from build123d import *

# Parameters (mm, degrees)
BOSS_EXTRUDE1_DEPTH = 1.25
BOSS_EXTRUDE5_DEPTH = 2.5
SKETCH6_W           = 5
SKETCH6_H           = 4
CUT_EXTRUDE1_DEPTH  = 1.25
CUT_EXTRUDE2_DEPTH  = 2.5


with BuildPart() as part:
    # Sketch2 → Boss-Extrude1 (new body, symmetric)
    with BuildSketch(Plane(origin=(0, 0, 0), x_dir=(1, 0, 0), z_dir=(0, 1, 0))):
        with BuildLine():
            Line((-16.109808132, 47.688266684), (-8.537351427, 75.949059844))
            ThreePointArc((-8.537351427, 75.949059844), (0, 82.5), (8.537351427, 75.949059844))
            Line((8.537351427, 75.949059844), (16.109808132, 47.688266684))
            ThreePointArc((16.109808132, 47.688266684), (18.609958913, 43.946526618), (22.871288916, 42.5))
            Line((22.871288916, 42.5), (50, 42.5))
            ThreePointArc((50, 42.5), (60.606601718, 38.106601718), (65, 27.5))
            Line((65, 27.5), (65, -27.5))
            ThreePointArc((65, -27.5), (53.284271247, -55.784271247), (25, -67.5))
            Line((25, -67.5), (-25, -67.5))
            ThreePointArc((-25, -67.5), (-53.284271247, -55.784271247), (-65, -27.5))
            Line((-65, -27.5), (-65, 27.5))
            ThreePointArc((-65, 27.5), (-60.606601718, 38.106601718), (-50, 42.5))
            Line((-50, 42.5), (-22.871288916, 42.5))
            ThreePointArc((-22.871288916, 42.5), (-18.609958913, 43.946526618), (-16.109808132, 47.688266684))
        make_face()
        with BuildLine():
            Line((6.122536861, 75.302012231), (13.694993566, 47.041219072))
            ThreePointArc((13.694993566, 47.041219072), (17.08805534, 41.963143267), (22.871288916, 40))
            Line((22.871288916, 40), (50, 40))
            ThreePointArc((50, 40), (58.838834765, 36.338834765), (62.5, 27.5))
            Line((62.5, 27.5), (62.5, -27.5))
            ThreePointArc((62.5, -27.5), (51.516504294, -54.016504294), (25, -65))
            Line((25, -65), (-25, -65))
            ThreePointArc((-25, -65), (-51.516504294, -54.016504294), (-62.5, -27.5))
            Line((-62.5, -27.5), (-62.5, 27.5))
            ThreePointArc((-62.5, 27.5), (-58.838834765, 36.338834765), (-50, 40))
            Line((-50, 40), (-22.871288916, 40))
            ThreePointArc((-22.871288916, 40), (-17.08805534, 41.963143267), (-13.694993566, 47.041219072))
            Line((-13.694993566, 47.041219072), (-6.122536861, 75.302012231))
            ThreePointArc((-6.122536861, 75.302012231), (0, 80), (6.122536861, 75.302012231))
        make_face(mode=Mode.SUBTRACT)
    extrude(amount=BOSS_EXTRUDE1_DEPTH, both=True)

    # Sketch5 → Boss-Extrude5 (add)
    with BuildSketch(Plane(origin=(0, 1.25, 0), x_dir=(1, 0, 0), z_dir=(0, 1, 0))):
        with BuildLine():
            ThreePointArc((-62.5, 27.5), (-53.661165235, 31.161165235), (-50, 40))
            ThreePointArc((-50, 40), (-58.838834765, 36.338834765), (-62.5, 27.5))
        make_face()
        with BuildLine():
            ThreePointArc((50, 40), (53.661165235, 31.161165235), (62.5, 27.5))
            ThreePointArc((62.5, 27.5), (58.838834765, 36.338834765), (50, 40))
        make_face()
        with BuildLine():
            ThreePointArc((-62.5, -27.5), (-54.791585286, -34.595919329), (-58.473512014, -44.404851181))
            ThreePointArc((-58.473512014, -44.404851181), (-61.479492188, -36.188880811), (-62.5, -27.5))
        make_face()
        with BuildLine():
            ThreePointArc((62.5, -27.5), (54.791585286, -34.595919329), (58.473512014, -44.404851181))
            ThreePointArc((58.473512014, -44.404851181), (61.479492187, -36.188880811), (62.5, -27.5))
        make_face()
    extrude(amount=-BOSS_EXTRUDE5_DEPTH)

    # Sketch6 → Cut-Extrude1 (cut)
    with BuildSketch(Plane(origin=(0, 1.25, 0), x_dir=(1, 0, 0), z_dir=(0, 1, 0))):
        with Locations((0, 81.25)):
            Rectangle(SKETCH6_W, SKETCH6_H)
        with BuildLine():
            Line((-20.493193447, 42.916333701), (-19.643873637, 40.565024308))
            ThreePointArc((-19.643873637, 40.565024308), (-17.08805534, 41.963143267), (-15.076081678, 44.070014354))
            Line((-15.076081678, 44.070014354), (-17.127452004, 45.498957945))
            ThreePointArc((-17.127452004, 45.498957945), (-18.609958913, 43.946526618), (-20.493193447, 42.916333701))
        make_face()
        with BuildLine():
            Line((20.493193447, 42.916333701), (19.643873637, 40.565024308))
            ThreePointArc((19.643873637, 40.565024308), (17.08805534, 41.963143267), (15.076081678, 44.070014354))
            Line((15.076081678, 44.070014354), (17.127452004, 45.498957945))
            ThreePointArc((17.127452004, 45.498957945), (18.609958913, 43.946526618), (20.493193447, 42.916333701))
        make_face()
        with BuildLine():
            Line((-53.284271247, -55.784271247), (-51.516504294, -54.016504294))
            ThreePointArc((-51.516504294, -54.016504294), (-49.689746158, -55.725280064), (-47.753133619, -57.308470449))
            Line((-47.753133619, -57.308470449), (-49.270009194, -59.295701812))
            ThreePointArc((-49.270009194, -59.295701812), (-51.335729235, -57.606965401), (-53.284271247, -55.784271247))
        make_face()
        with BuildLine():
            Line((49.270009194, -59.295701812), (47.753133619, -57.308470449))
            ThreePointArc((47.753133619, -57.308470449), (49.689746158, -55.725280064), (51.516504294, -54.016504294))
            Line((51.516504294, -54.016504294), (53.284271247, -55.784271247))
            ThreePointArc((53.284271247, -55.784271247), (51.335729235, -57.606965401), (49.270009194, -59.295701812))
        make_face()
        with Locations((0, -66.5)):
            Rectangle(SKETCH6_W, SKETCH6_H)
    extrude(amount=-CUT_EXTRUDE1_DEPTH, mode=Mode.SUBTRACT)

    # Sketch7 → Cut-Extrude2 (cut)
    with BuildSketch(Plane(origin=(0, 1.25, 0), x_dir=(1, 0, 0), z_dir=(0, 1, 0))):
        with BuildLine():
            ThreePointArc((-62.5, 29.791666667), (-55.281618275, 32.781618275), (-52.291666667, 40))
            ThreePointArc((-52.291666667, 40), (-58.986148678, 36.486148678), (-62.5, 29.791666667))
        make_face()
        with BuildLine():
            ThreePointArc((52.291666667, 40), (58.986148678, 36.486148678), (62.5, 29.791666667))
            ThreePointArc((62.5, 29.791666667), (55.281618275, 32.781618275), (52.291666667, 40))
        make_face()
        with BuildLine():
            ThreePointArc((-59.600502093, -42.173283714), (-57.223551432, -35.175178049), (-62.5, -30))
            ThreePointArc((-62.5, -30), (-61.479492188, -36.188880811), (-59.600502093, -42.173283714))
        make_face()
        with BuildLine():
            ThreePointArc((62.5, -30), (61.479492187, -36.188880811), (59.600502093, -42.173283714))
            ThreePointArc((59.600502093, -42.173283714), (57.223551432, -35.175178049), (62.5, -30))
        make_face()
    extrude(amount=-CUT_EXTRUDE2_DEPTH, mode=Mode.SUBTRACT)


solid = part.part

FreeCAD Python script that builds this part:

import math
import FreeCAD as App
import Part
import Sketcher
Q = App.Units.Quantity


def add_polygon(sketch, points):
    """Adds a closed chain of lines whose ends are joined by coincident constraints."""
    first, n = sketch.GeometryCount, len(points)
    for a, b in zip(points, points[1:] + points[:1]):
        sketch.addGeometry(Part.LineSegment(App.Vector(*a, 0), App.Vector(*b, 0)), False)
    for i in range(n):
        sketch.addConstraint(Sketcher.Constraint("Coincident", first + i, 2, first + (i + 1) % n, 1))

doc = App.newDocument("Part")
body = doc.addObject("PartDesign::Body", "Body")

sketch1 = doc.addObject("Sketcher::SketchObject", "Sketch")
body.addObject(sketch1)
sketch1.AttachmentSupport = (doc.XZ_Plane, [""])
sketch1.MapMode = "FlatFace"
sketch1.addGeometry([
    Part.LineSegment(App.Vector(-8.537351, -75.94906, 0), App.Vector(-16.109808, -47.688267, 0)),
    Part.ArcOfCircle(Part.Circle(App.Vector(-22.871289, -49.5, 0), App.Vector(0, 0, 1), 7), math.radians(15), math.radians(90)),
    Part.LineSegment(App.Vector(-22.871289, -42.5, 0), App.Vector(-50, -42.5, 0)),
    Part.ArcOfCircle(Part.Circle(App.Vector(-50, -27.5, 0), App.Vector(0, 0, 1), 15), math.radians(180), math.radians(270)),
    Part.LineSegment(App.Vector(-65, -27.5, 0), App.Vector(-65, 27.5, 0)),
    Part.ArcOfCircle(Part.Circle(App.Vector(-25, 27.5, 0), App.Vector(0, 0, 1), 40), math.radians(90), math.radians(180)),
    Part.LineSegment(App.Vector(-25, 67.5, 0), App.Vector(25, 67.5, 0)),
    Part.ArcOfCircle(Part.Circle(App.Vector(25, 27.5, 0), App.Vector(0, 0, 1), 40), math.radians(0), math.radians(90)),
    Part.LineSegment(App.Vector(65, 27.5, 0), App.Vector(65, -27.5, 0)),
    Part.ArcOfCircle(Part.Circle(App.Vector(50, -27.5, 0), App.Vector(0, 0, 1), 15), math.radians(-90), math.radians(0)),
    Part.LineSegment(App.Vector(50, -42.5, 0), App.Vector(22.871289, -42.5, 0)),
    Part.ArcOfCircle(Part.Circle(App.Vector(22.871289, -49.5, 0), App.Vector(0, 0, 1), 7), math.radians(90), math.radians(165)),
    Part.LineSegment(App.Vector(16.109808, -47.688267, 0), App.Vector(8.537351, -75.94906, 0)),
    Part.ArcOfCircle(Part.Circle(App.Vector(0, -73.661483, 0), App.Vector(0, 0, 1), 8.838517), math.radians(-165), math.radians(-15)),
    Part.LineSegment(App.Vector(6.122537, -75.302012, 0), App.Vector(13.694994, -47.041219, 0)),
    Part.ArcOfCircle(Part.Circle(App.Vector(22.871289, -49.5, 0), App.Vector(0, 0, 1), 9.5), math.radians(90), math.radians(165)),
    Part.LineSegment(App.Vector(22.871289, -40, 0), App.Vector(50, -40, 0)),
    Part.ArcOfCircle(Part.Circle(App.Vector(50, -27.5, 0), App.Vector(0, 0, 1), 12.5), math.radians(-90), math.radians(0)),
    Part.LineSegment(App.Vector(62.5, -27.5, 0), App.Vector(62.5, 27.5, 0)),
    Part.ArcOfCircle(Part.Circle(App.Vector(25, 27.5, 0), App.Vector(0, 0, 1), 37.5), math.radians(0), math.radians(90)),
    Part.LineSegment(App.Vector(25, 65, 0), App.Vector(-25, 65, 0)),
    Part.ArcOfCircle(Part.Circle(App.Vector(-25, 27.5, 0), App.Vector(0, 0, 1), 37.5), math.radians(90), math.radians(180)),
    Part.LineSegment(App.Vector(-62.5, 27.5, 0), App.Vector(-62.5, -27.5, 0)),
    Part.ArcOfCircle(Part.Circle(App.Vector(-50, -27.5, 0), App.Vector(0, 0, 1), 12.5), math.radians(180), math.radians(270)),
    Part.LineSegment(App.Vector(-50, -40, 0), App.Vector(-22.871289, -40, 0)),
    Part.ArcOfCircle(Part.Circle(App.Vector(-22.871289, -49.5, 0), App.Vector(0, 0, 1), 9.5), math.radians(15), math.radians(90)),
    Part.LineSegment(App.Vector(-13.694994, -47.041219, 0), App.Vector(-6.122537, -75.302012, 0)),
    Part.ArcOfCircle(Part.Circle(App.Vector(0, -73.661483, 0), App.Vector(0, 0, 1), 6.338517), math.radians(-165), math.radians(-15)),
], False)
sketch1.addConstraint([
    Sketcher.Constraint("Tangent", 0, 2, 1, 1),
    Sketcher.Constraint("Tangent", 1, 2, 2, 1),
    Sketcher.Constraint("Tangent", 2, 2, 3, 2),
    Sketcher.Constraint("Tangent", 3, 1, 4, 1),
    Sketcher.Constraint("Tangent", 4, 2, 5, 2),
    Sketcher.Constraint("Tangent", 5, 1, 6, 1),
    Sketcher.Constraint("Tangent", 6, 2, 7, 2),
    Sketcher.Constraint("Tangent", 7, 1, 8, 1),
    Sketcher.Constraint("Tangent", 8, 2, 9, 2),
    Sketcher.Constraint("Tangent", 9, 1, 10, 1),
    Sketcher.Constraint("Tangent", 10, 2, 11, 1),
    Sketcher.Constraint("Tangent", 11, 2, 12, 1),
    Sketcher.Constraint("Tangent", 12, 2, 13, 2),
    Sketcher.Constraint("Tangent", 13, 1, 0, 1),
    Sketcher.Constraint("Tangent", 14, 2, 15, 2),
    Sketcher.Constraint("Tangent", 15, 1, 16, 1),
    Sketcher.Constraint("Tangent", 16, 2, 17, 1),
    Sketcher.Constraint("Tangent", 17, 2, 18, 1),
    Sketcher.Constraint("Tangent", 18, 2, 19, 1),
    Sketcher.Constraint("Tangent", 19, 2, 20, 1),
    Sketcher.Constraint("Tangent", 20, 2, 21, 1),
    Sketcher.Constraint("Tangent", 21, 2, 22, 1),
    Sketcher.Constraint("Tangent", 22, 2, 23, 1),
    Sketcher.Constraint("Tangent", 23, 2, 24, 1),
    Sketcher.Constraint("Tangent", 24, 2, 25, 2),
    Sketcher.Constraint("Tangent", 25, 1, 26, 1),
    Sketcher.Constraint("Tangent", 26, 2, 27, 1),
    Sketcher.Constraint("Tangent", 27, 2, 14, 1),
    Sketcher.Constraint("Horizontal", 2),
    Sketcher.Constraint("Vertical", 4),
    Sketcher.Constraint("Horizontal", 6),
    Sketcher.Constraint("Vertical", 8),
    Sketcher.Constraint("Horizontal", 10),
    Sketcher.Constraint("Horizontal", 16),
    Sketcher.Constraint("Vertical", 18),
    Sketcher.Constraint("Horizontal", 20),
    Sketcher.Constraint("Vertical", 22),
    Sketcher.Constraint("Horizontal", 24),
    Sketcher.Constraint("Coincident", 15, 3, 11, 3),
    Sketcher.Constraint("Coincident", 17, 3, 9, 3),
    Sketcher.Constraint("Coincident", 19, 3, 7, 3),
    Sketcher.Constraint("Coincident", 21, 3, 5, 3),
    Sketcher.Constraint("Coincident", 23, 3, 3, 3),
    Sketcher.Constraint("Coincident", 25, 3, 1, 3),
    Sketcher.Constraint("Coincident", 27, 3, 13, 3),
    Sketcher.Constraint("Equal", 5, 7),
    Sketcher.Constraint("Equal", 3, 9),
    Sketcher.Constraint("Equal", 1, 11),
    Sketcher.Constraint("Symmetric", 3, 1, 7, 1, -1, 1),
    Sketcher.Constraint("Symmetric", 1, 3, 11, 3, -2),
    Sketcher.Constraint("PointOnObject", 13, 3, -2),
    Sketcher.Constraint("Parallel", 12, 14),
    Sketcher.Constraint("Radius", 1, 7.0),
    Sketcher.Constraint("Radius", 3, 15.0),
    Sketcher.Constraint("Radius", 5, 40.0),
    Sketcher.Constraint("Radius", 15, 9.5),
    Sketcher.Constraint("DistanceX", 6, 1, 6, 2, 50.0),
    Sketcher.Constraint("DistanceY", 4, 1, 4, 2, 55.0),
    Sketcher.Constraint("Angle", 0, Q("105 deg")),
    Sketcher.Constraint("Radius", 13, 8.838517),
    Sketcher.Constraint("DistanceX", 2, 2, 2, 1, 27.128711),
])
pad1 = doc.addObject("PartDesign::Pad", "Pad")
body.addObject(pad1)
pad1.Profile = sketch1
pad1.Length = 2.5
pad1.Midplane = True

sketch2 = doc.addObject("Sketcher::SketchObject", "Sketch001")
body.addObject(sketch2)
sketch2.AttachmentSupport = (doc.XZ_Plane, [""])
sketch2.MapMode = "FlatFace"
sketch2.AttachmentOffset = App.Placement(App.Vector(0, 0, -1.25), App.Rotation())
sketch2.addGeometry([
    Part.ArcOfCircle(Part.Circle(App.Vector(-62.5, -40, 0), App.Vector(0, 0, 1), 12.5), math.radians(0), math.radians(90)),
    Part.ArcOfCircle(Part.Circle(App.Vector(-50, -27.5, 0), App.Vector(0, 0, 1), 12.5), math.radians(180), math.radians(270)),
    Part.ArcOfCircle(Part.Circle(App.Vector(62.5, -40, 0), App.Vector(0, 0, 1), 12.5), math.radians(90), math.radians(180)),
    Part.ArcOfCircle(Part.Circle(App.Vector(50, -27.5, 0), App.Vector(0, 0, 1), 12.5), math.radians(-90), math.radians(0)),
    Part.ArcOfCircle(Part.Circle(App.Vector(-63.911458, 36.76814, 0), App.Vector(0, 0, 1), 9.375), math.radians(-81.340877), math.radians(54.546109)),
    Part.ArcOfCircle(Part.Circle(App.Vector(-25, 27.5, 0), App.Vector(0, 0, 1), 37.5), math.radians(153.205232), math.radians(180)),
    Part.ArcOfCircle(Part.Circle(App.Vector(63.911458, 36.76814, 0), App.Vector(0, 0, 1), 9.375), math.radians(125.453891), math.radians(261.340877)),
    Part.ArcOfCircle(Part.Circle(App.Vector(25, 27.5, 0), App.Vector(0, 0, 1), 37.5), math.radians(0), math.radians(26.794768)),
], False)
sketch2.addConstraint([
    Sketcher.Constraint("Coincident", 0, 1, 1, 2),
    Sketcher.Constraint("Coincident", 1, 1, 0, 2),
    Sketcher.Constraint("Coincident", 2, 1, 3, 2),
    Sketcher.Constraint("Coincident", 3, 1, 2, 2),
    Sketcher.Constraint("Coincident", 4, 1, 5, 2),
    Sketcher.Constraint("Coincident", 5, 1, 4, 2),
    Sketcher.Constraint("Coincident", 6, 1, 7, 2),
    Sketcher.Constraint("Coincident", 7, 1, 6, 2),
    Sketcher.Constraint("Equal", 0, 1),
    Sketcher.Constraint("Equal", 1, 2),
    Sketcher.Constraint("Equal", 2, 3),
    Sketcher.Constraint("Equal", 4, 6),
    Sketcher.Constraint("Equal", 5, 7),
    Sketcher.Constraint("Symmetric", 2, 1, 4, 1, -1, 1),
    Sketcher.Constraint("Symmetric", 1, 1, 7, 1, -1, 1),
    Sketcher.Constraint("Symmetric", 0, 3, 2, 3, -2),
    Sketcher.Constraint("Symmetric", 1, 3, 3, 3, -2),
    Sketcher.Constraint("Symmetric", 5, 1, 6, 1, -2),
    Sketcher.Constraint("Horizontal", 2, 3, 0, 1),
    Sketcher.Constraint("Horizontal", 7, 3, 4, 1),
    Sketcher.Constraint("Vertical", 1, 3, 0, 1),
    Sketcher.Constraint("Radius", 0, 12.5),
    Sketcher.Constraint("Radius", 5, 37.5),
    Sketcher.Constraint("DistanceY", 0, 3, -1, 1, 40.0),
    Sketcher.Constraint("DistanceX", 1, 3, -1, 1, 50.0),
    Sketcher.Constraint("Radius", 4, 9.375),
    Sketcher.Constraint("DistanceX", 4, 3, -1, 1, 63.911458),
])
pad2 = doc.addObject("PartDesign::Pad", "Pad001")
body.addObject(pad2)
pad2.Profile = sketch2
pad2.Length = 2.5

sketch3 = doc.addObject("Sketcher::SketchObject", "Sketch002")
body.addObject(sketch3)
sketch3.AttachmentSupport = (doc.XZ_Plane, [""])
sketch3.MapMode = "FlatFace"
sketch3.AttachmentOffset = App.Placement(App.Vector(0, 0, -1.25), App.Rotation())
add_polygon(sketch3, [(-2.5, -83.25), (-2.5, -79.25), (2.5, -79.25), (2.5, -83.25)])
sketch3.addGeometry(Part.LineSegment(App.Vector(-20.493193, -42.916334, 0), App.Vector(-19.643874, -40.565024, 0)), False)
sketch3.addGeometry(Part.ArcOfCircle(Part.Circle(App.Vector(-22.871289, -49.5, 0), App.Vector(0, 0, 1), 9.5), math.radians(34.860299), math.radians(70.139701)), False)
sketch3.addGeometry(Part.LineSegment(App.Vector(-15.076082, -44.070014, 0), App.Vector(-17.127452, -45.498958, 0)), False)
sketch3.addGeometry(Part.ArcOfCircle(Part.Circle(App.Vector(-22.871289, -49.5, 0), App.Vector(0, 0, 1), 7), math.radians(34.860299), math.radians(70.139701)), False)
sketch3.addGeometry(Part.LineSegment(App.Vector(19.643874, -40.565024, 0), App.Vector(20.493193, -42.916334, 0)), False)
sketch3.addGeometry(Part.ArcOfCircle(Part.Circle(App.Vector(22.871289, -49.5, 0), App.Vector(0, 0, 1), 7), math.radians(109.860299), math.radians(145.139701)), False)
sketch3.addGeometry(Part.LineSegment(App.Vector(17.127452, -45.498958, 0), App.Vector(15.076082, -44.070014, 0)), False)
sketch3.addGeometry(Part.ArcOfCircle(Part.Circle(App.Vector(22.871289, -49.5, 0), App.Vector(0, 0, 1), 9.5), math.radians(109.860299), math.radians(145.139701)), False)
sketch3.addGeometry(Part.LineSegment(App.Vector(-51.516504, 54.016504, 0), App.Vector(-53.284271, 55.784271, 0)), False)
sketch3.addGeometry(Part.ArcOfCircle(Part.Circle(App.Vector(-25, 27.5, 0), App.Vector(0, 0, 1), 40), math.radians(127.354893), math.radians(135)), False)
sketch3.addGeometry(Part.LineSegment(App.Vector(-49.270009, 59.295702, 0), App.Vector(-47.753134, 57.30847, 0)), False)
sketch3.addGeometry(Part.ArcOfCircle(Part.Circle(App.Vector(-25, 27.5, 0), App.Vector(0, 0, 1), 37.5), math.radians(127.354893), math.radians(135)), False)
sketch3.addGeometry(Part.LineSegment(App.Vector(47.753134, 57.30847, 0), App.Vector(49.270009, 59.295702, 0)), False)
sketch3.addGeometry(Part.ArcOfCircle(Part.Circle(App.Vector(25, 27.5, 0), App.Vector(0, 0, 1), 40), math.radians(45), math.radians(52.645107)), False)
sketch3.addGeometry(Part.LineSegment(App.Vector(53.284271, 55.784271, 0), App.Vector(51.516504, 54.016504, 0)), False)
sketch3.addGeometry(Part.ArcOfCircle(Part.Circle(App.Vector(25, 27.5, 0), App.Vector(0, 0, 1), 37.5), math.radians(45), math.radians(52.645107)), False)
add_polygon(sketch3, [(-2.5, 64.5), (-2.5, 68.5), (2.5, 68.5), (2.5, 64.5)])
sketch3.addConstraint([
    Sketcher.Constraint("Coincident", 4, 2, 5, 2),
    Sketcher.Constraint("Coincident", 5, 1, 6, 1),
    Sketcher.Constraint("Coincident", 6, 2, 7, 1),
    Sketcher.Constraint("Coincident", 7, 2, 4, 1),
    Sketcher.Constraint("Coincident", 8, 2, 9, 1),
    Sketcher.Constraint("Coincident", 9, 2, 10, 1),
    Sketcher.Constraint("Coincident", 10, 2, 11, 2),
    Sketcher.Constraint("Coincident", 11, 1, 8, 1),
    Sketcher.Constraint("Coincident", 12, 2, 13, 2),
    Sketcher.Constraint("Coincident", 13, 1, 14, 1),
    Sketcher.Constraint("Coincident", 14, 2, 15, 1),
    Sketcher.Constraint("Coincident", 15, 2, 12, 1),
    Sketcher.Constraint("Coincident", 16, 2, 17, 2),
    Sketcher.Constraint("Coincident", 17, 1, 18, 1),
    Sketcher.Constraint("Coincident", 18, 2, 19, 1),
    Sketcher.Constraint("Coincident", 19, 2, 16, 1),
    Sketcher.Constraint("Vertical", 0),
    Sketcher.Constraint("Horizontal", 1),
    Sketcher.Constraint("Vertical", 2),
    Sketcher.Constraint("Horizontal", 3),
    Sketcher.Constraint("Vertical", 20),
    Sketcher.Constraint("Horizontal", 21),
    Sketcher.Constraint("Vertical", 22),
    Sketcher.Constraint("Horizontal", 23),
    Sketcher.Constraint("Coincident", 7, 3, 5, 3),
    Sketcher.Constraint("Coincident", 11, 3, 9, 3),
    Sketcher.Constraint("Coincident", 15, 3, 13, 3),
    Sketcher.Constraint("Coincident", 19, 3, 17, 3),
    Sketcher.Constraint("Equal", 7, 9),
    Sketcher.Constraint("Equal", 5, 11),
    Sketcher.Constraint("Equal", 13, 17),
    Sketcher.Constraint("Equal", 15, 19),
    Sketcher.Constraint("Symmetric", 5, 3, 9, 3, -2),
    Sketcher.Constraint("Symmetric", 13, 3, 17, 3, -2),
    Sketcher.Constraint("Perpendicular", 12, 18),
    Sketcher.Constraint("Horizontal", 7, 2, 8, 2),
    Sketcher.Constraint("Horizontal", 6, 2, 9, 2),
    Sketcher.Constraint("Horizontal", 5, 1, 10, 2),
    Sketcher.Constraint("Horizontal", 4, 2, 11, 1),
    Sketcher.Constraint("Horizontal", 13, 1, 16, 2),
    Sketcher.Constraint("Horizontal", 12, 2, 17, 1),
    Sketcher.Constraint("Horizontal", 15, 2, 18, 2),
    Sketcher.Constraint("Horizontal", 14, 2, 19, 2),
    Sketcher.Constraint("Vertical", 3, 2, 20, 2),
    Sketcher.Constraint("Vertical", 2, 2, 21, 2),
    Sketcher.Constraint("Equal", 2, 20),
    Sketcher.Constraint("Equal", 10, 12),
    Sketcher.Constraint("Radius", 7, 7.0),
    Sketcher.Constraint("Radius", 13, 40.0),
    Sketcher.Constraint("Radius", 5, 9.5),
    Sketcher.Constraint("DistanceX", 1, 1, 1, 2, 5.0),
    Sketcher.Constraint("DistanceY", 0, 1, 0, 2, 4.0),
    Sketcher.Constraint("DistanceX", 13, 3, -1, 1, 25.0),
    Sketcher.Constraint("DistanceY", 5, 3, 13, 3, 77.0),
    Sketcher.Constraint("DistanceY", 15, 3, 20, 2, 41.0),
    Sketcher.Constraint("DistanceY", 5, 3, -1, 1, 49.5),
    Sketcher.Constraint("DistanceX", 0, 2, -1, 1, 2.5),
    Sketcher.Constraint("DistanceY", 0, 2, -1, 1, 79.25),
    Sketcher.Constraint("DistanceY", -1, 1, 13, 1, 59.295702),
    Sketcher.Constraint("DistanceY", 12, 2, 14, 2, 1.524199),
    Sketcher.Constraint("DistanceX", 5, 3, -1, 1, 22.871289),
    Sketcher.Constraint("DistanceX", 5, 1, -1, 1, 15.076082),
    Sketcher.Constraint("DistanceX", 12, 2, -1, 1, 53.284271),
    Sketcher.Constraint("DistanceX", 4, 2, 5, 1, 4.567792),
    Sketcher.Constraint("DistanceX", 6, 2, 5, 1, 2.05137),
    Sketcher.Constraint("DistanceX", 7, 2, 4, 2, 0.84932),
])
pocket1 = doc.addObject("PartDesign::Pocket", "Pocket")
body.addObject(pocket1)
pocket1.Profile = sketch3
pocket1.Length = 1.25
pocket1.Reversed = True

sketch4 = doc.addObject("Sketcher::SketchObject", "Sketch003")
body.addObject(sketch4)
sketch4.AttachmentSupport = (doc.XZ_Plane, [""])
sketch4.MapMode = "FlatFace"
sketch4.AttachmentOffset = App.Placement(App.Vector(0, 0, -1.25), App.Rotation())
sketch4.addGeometry([
    Part.ArcOfCircle(Part.Circle(App.Vector(-62.5, -40, 0), App.Vector(0, 0, 1), 10.208333), math.radians(0), math.radians(90)),
    Part.ArcOfCircle(Part.Circle(App.Vector(-50, -27.5, 0), App.Vector(0, 0, 1), 12.708333), math.radians(-169.611142), math.radians(-100.388858)),
    Part.ArcOfCircle(Part.Circle(App.Vector(50, -27.5, 0), App.Vector(0, 0, 1), 12.708333), math.radians(-79.611142), math.radians(-10.388858)),
    Part.ArcOfCircle(Part.Circle(App.Vector(62.5, -40, 0), App.Vector(0, 0, 1), 10.208333), math.radians(90), math.radians(180)),
    Part.ArcOfCircle(Part.Circle(App.Vector(-63.977523, 36.783875, 0), App.Vector(0, 0, 1), 6.942913), math.radians(-77.712911), math.radians(50.918143)),
    Part.ArcOfCircle(Part.Circle(App.Vector(-18.110563, 25.859037, 0), App.Vector(0, 0, 1), 44.582168), math.radians(158.534766), math.radians(174.670466)),
    Part.ArcOfCircle(Part.Circle(App.Vector(18.110563, 25.859037, 0), App.Vector(0, 0, 1), 44.582168), math.radians(5.329534), math.radians(21.465234)),
    Part.ArcOfCircle(Part.Circle(App.Vector(63.977523, 36.783875, 0), App.Vector(0, 0, 1), 6.942913), math.radians(129.081857), math.radians(257.712911)),
], False)
sketch4.addConstraint([
    Sketcher.Constraint("Coincident", 0, 1, 1, 2),
    Sketcher.Constraint("Coincident", 1, 1, 0, 2),
    Sketcher.Constraint("Coincident", 2, 1, 3, 2),
    Sketcher.Constraint("Coincident", 3, 1, 2, 2),
    Sketcher.Constraint("Coincident", 4, 1, 5, 2),
    Sketcher.Constraint("Coincident", 5, 1, 4, 2),
    Sketcher.Constraint("Coincident", 6, 1, 7, 2),
    Sketcher.Constraint("Coincident", 7, 1, 6, 2),
    Sketcher.Constraint("Equal", 1, 2),
    Sketcher.Constraint("Equal", 0, 3),
    Sketcher.Constraint("Equal", 5, 6),
    Sketcher.Constraint("Equal", 4, 7),
    Sketcher.Constraint("Symmetric", 1, 3, 2, 3, -2),
    Sketcher.Constraint("Symmetric", 0, 3, 3, 3, -2),
    Sketcher.Constraint("Symmetric", 5, 3, 6, 3, -2),
    Sketcher.Constraint("Symmetric", 4, 3, 7, 3, -2),
    Sketcher.Constraint("Horizontal", 3, 3, 0, 1),
    Sketcher.Constraint("Vertical", 0, 3, 1, 1),
    Sketcher.Constraint("Vertical", 1, 1, 4, 1),
    Sketcher.Constraint("DistanceY", 0, 3, -1, 1, 40.0),
    Sketcher.Constraint("DistanceX", 1, 3, -1, 1, 50.0),
    Sketcher.Constraint("DistanceY", -1, 1, 4, 1, 30.0),
    Sketcher.Constraint("DistanceX", 0, 3, 3, 3, 125.0),
    Sketcher.Constraint("Radius", 0, 10.208333),
    Sketcher.Constraint("Radius", 4, 6.942913),
    Sketcher.Constraint("Radius", 5, 44.582168),
    Sketcher.Constraint("DistanceX", 4, 3, 5, 3, 45.866959),
    Sketcher.Constraint("DistanceY", 5, 3, 4, 3, 10.924838),
])
pocket2 = doc.addObject("PartDesign::Pocket", "Pocket001")
body.addObject(pocket2)
pocket2.Profile = sketch4
pocket2.Length = 2.5
pocket2.Reversed = True

doc.recompute()
